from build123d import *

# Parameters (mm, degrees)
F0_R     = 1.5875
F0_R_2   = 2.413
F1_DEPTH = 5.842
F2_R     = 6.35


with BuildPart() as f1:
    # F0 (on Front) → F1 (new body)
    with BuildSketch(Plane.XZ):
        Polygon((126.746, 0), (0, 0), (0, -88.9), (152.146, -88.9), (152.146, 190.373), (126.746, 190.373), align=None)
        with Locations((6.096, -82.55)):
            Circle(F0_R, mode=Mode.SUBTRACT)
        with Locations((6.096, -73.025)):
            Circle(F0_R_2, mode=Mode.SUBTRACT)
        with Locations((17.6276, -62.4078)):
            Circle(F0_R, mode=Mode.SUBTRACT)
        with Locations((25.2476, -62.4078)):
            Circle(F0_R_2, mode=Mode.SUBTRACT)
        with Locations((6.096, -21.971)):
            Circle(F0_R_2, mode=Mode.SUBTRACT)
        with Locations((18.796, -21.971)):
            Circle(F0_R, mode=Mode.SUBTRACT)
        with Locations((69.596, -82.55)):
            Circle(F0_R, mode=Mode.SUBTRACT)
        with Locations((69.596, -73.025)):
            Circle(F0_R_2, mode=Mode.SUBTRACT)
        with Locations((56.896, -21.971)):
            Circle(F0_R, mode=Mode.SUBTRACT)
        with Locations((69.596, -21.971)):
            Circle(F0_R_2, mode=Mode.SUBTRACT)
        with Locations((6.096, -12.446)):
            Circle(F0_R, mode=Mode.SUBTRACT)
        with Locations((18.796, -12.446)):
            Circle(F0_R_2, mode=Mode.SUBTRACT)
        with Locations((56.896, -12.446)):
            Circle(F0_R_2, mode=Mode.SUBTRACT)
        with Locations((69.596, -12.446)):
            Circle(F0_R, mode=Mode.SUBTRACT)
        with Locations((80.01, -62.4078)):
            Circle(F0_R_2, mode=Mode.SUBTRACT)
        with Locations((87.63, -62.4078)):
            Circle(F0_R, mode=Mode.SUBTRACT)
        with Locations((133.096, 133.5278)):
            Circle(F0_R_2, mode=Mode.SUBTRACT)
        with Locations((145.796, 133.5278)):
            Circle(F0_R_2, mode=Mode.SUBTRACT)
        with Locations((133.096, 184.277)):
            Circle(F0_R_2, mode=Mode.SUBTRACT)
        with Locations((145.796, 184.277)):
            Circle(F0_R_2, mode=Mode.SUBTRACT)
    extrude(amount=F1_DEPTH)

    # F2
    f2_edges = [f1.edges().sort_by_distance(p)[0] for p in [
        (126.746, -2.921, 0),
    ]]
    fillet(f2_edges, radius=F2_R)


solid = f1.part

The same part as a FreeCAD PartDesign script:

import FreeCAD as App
import Part
import Sketcher
from FreeCAD import Vector
Q = App.Units.Quantity


def edges_at(feature, points):
    """Names of the edges that pass closest to the given points."""
    edges = feature.Shape.Edges
    near = lambda p: min(range(len(edges)), key=lambda i: edges[i].distToShape(Part.Vertex(*p))[0])
    return sorted({f"Edge{near(p) + 1}" for p in points})


def add_polygon(sketch, points):
    """Adds a closed chain of lines whose ends are joined by coincident constraints."""
    first, n = sketch.GeometryCount, len(points)
    for a, b in zip(points, points[1:] + points[:1]):
        sketch.addGeometry(Part.LineSegment(App.Vector(*a, 0), App.Vector(*b, 0)), False)
    for i in range(n):
        sketch.addConstraint(Sketcher.Constraint("Coincident", first + i, 2, first + (i + 1) % n, 1))

doc = App.newDocument("Part")
params = doc.addObject("Spreadsheet::Sheet", "Params")
for row, (alias, value) in enumerate([
    ("sketch1_diameter", "0.19 in"),
    ("sketch1_width", "1 in"),
    ("sketch1_diameter2", "0.125 in"),
    ("sketch1_height", "3.5 in"),
    ("sketch1_width2", "4.99 in"),
    ("pad1_length", "0.23 in"),
    ("fillet_radius", "0.25 in"),
], start=1):
    params.set(f"A{row}", alias)
    params.set(f"B{row}", "=" + value)
    params.setAlias(f"B{row}", alias)

body = doc.addObject("PartDesign::Body", "Body")

# Sketch on XZ plane
sketch1 = doc.addObject("Sketcher::SketchObject", "Sketch")
body.addObject(sketch1)
sketch1.AttachmentSupport = (doc.XZ_Plane, [""])
sketch1.MapMode = "FlatFace"
add_polygon(sketch1, [(126.7, 0), (0, 0), (0, -88.9), (152.1, -88.9), (152.1, 190.4), (126.7, 190.4)])  # lines 0-5
sketch1.addGeometry(Part.Circle(Vector(6.1, -82.5, 0), Vector(0, 0, 1), 1.6), False)  # 6
sketch1.addGeometry(Part.Circle(Vector(6.1, -73, 0), Vector(0, 0, 1), 2.4), False)  # 7
sketch1.addGeometry(Part.Circle(Vector(17.6, -62.4, 0), Vector(0, 0, 1), 1.6), False)  # 8
sketch1.addGeometry(Part.Circle(Vector(25.2, -62.4, 0), Vector(0, 0, 1), 2.4), False)  # 9
sketch1.addGeometry(Part.Circle(Vector(6.1, -22, 0), Vector(0, 0, 1), 2.4), False)  # 10
sketch1.addGeometry(Part.Circle(Vector(18.8, -22, 0), Vector(0, 0, 1), 1.6), False)  # 11
sketch1.addGeometry(Part.Circle(Vector(69.6, -82.5, 0), Vector(0, 0, 1), 1.6), False)  # 12
sketch1.addGeometry(Part.Circle(Vector(69.6, -73, 0), Vector(0, 0, 1), 2.4), False)  # 13
sketch1.addGeometry(Part.Circle(Vector(56.9, -22, 0), Vector(0, 0, 1), 1.6), False)  # 14
sketch1.addGeometry(Part.Circle(Vector(69.6, -22, 0), Vector(0, 0, 1), 2.4), False)  # 15
sketch1.addGeometry(Part.Circle(Vector(6.1, -12.4, 0), Vector(0, 0, 1), 1.6), False)  # 16
sketch1.addGeometry(Part.Circle(Vector(18.8, -12.4, 0), Vector(0, 0, 1), 2.4), False)  # 17
sketch1.addGeometry(Part.Circle(Vector(56.9, -12.4, 0), Vector(0, 0, 1), 2.4), False)  # 18
sketch1.addGeometry(Part.Circle(Vector(69.6, -12.4, 0), Vector(0, 0, 1), 1.6), False)  # 19
sketch1.addGeometry(Part.Circle(Vector(80, -62.4, 0), Vector(0, 0, 1), 2.4), False)  # 20
sketch1.addGeometry(Part.Circle(Vector(87.6, -62.4, 0), Vector(0, 0, 1), 1.6), False)  # 21
sketch1.addGeometry(Part.Circle(Vector(133.1, 133.5, 0), Vector(0, 0, 1), 2.4), False)  # 22
sketch1.addGeometry(Part.Circle(Vector(145.8, 133.5, 0), Vector(0, 0, 1), 2.4), False)  # 23
sketch1.addGeometry(Part.Circle(Vector(133.1, 184.3, 0), Vector(0, 0, 1), 2.4), False)  # 24
sketch1.addGeometry(Part.Circle(Vector(145.8, 184.3, 0), Vector(0, 0, 1), 2.4), False)  # 25
sketch1.addConstraint([
    Sketcher.Constraint("Horizontal", 0),
    Sketcher.Constraint("Vertical", 1),
    Sketcher.Constraint("Horizontal", 2),
    Sketcher.Constraint("Vertical", 3),
    Sketcher.Constraint("Horizontal", 4),
    Sketcher.Constraint("Vertical", 5),
    Sketcher.Constraint("Coincident", 0, 2, -1, 1),
    Sketcher.Constraint("Equal", 6, 8),
    Sketcher.Constraint("Equal", 7, 9),
    Sketcher.Constraint("Equal", 9, 10),
    Sketcher.Constraint("Equal", 8, 11),
    Sketcher.Constraint("Equal", 11, 12),
    Sketcher.Constraint("Equal", 10, 13),
    Sketcher.Constraint("Equal", 12, 14),
    Sketcher.Constraint("Equal", 13, 15),
    Sketcher.Constraint("Equal", 14, 16),
    Sketcher.Constraint("Equal", 15, 17),
    Sketcher.Constraint("Equal", 17, 18),
    Sketcher.Constraint("Equal", 16, 19),
    Sketcher.Constraint("Equal", 18, 20),
    Sketcher.Constraint("Equal", 19, 21),
    Sketcher.Constraint("Equal", 20, 22),
    Sketcher.Constraint("Equal", 22, 23),
    Sketcher.Constraint("Equal", 23, 24),
    Sketcher.Constraint("Equal", 24, 25),
    Sketcher.Constraint("Horizontal", 8, 3, 9, 3),
    Sketcher.Constraint("Horizontal", 10, 3, 11, 3),
    Sketcher.Constraint("Horizontal", 6, 3, 12, 3),
    Sketcher.Constraint("Horizontal", 7, 3, 13, 3),
    Sketcher.Constraint("Horizontal", 11, 3, 14, 3),
    Sketcher.Constraint("Horizontal", 14, 3, 15, 3),
    Sketcher.Constraint("Horizontal", 16, 3, 17, 3),
    Sketcher.Constraint("Horizontal", 17, 3, 18, 3),
    Sketcher.Constraint("Horizontal", 18, 3, 19, 3),
    Sketcher.Constraint("Horizontal", 9, 3, 20, 3),
    Sketcher.Constraint("Horizontal", 20, 3, 21, 3),
    Sketcher.Constraint("Horizontal", 22, 3, 23, 3),
    Sketcher.Constraint("Horizontal", 24, 3, 25, 3),
    Sketcher.Constraint("Vertical", 6, 3, 7, 3),
    Sketcher.Constraint("Vertical", 7, 3, 10, 3),
    Sketcher.Constraint("Vertical", 12, 3, 13, 3),
    Sketcher.Constraint("Vertical", 13, 3, 15, 3),
    Sketcher.Constraint("Vertical", 10, 3, 16, 3),
    Sketcher.Constraint("Vertical", 11, 3, 17, 3),
    Sketcher.Constraint("Vertical", 14, 3, 18, 3),
    Sketcher.Constraint("Vertical", 15, 3, 19, 3),
    Sketcher.Constraint("Vertical", 22, 3, 24, 3),
    Sketcher.Constraint("Vertical", 23, 3, 25, 3),
    Sketcher.Constraint("Diameter", 7, Q("0.19 in")),
    Sketcher.Constraint("DistanceX", 4, 2, 4, 1, Q("1 in")),
    Sketcher.Constraint("Diameter", 6, Q("0.125 in")),
    Sketcher.Constraint("DistanceY", 1, 2, 1, 1, Q("3.5 in")),
    Sketcher.Constraint("DistanceX", 11, 3, 12, 3, Q("2 in")),
    Sketcher.Constraint("DistanceX", 10, 3, 14, 3, Q("2 in")),
    Sketcher.Constraint("DistanceX", 18, 3, 22, 3, Q("3 in")),
    Sketcher.Constraint("DistanceX", 19, 3, 23, 3, Q("3 in")),
    Sketcher.Constraint("DistanceX", 0, 2, 0, 1, Q("4.99 in")),
    Sketcher.Constraint("DistanceX", 8, 3, 9, 3, Q("0.3 in")),
    Sketcher.Constraint("DistanceX", 10, 3, 11, 3, Q("0.5 in")),
    Sketcher.Constraint("DistanceX", 20, 3, 21, 3, Q("0.3 in")),
    Sketcher.Constraint("DistanceY", 3, 1, 3, 2, Q("10.995 in")),
    Sketcher.Constraint("DistanceX", -1, 1, 6, 3, Q("0.24 in")),
    Sketcher.Constraint("DistanceY", 6, 3, -1, 1, Q("3.25 in")),
    Sketcher.Constraint("DistanceY", 16, 3, -1, 1, Q("0.49 in")),
    Sketcher.Constraint("DistanceX", -1, 1, 20, 3, Q("3.15 in")),
    Sketcher.Constraint("DistanceY", 7, 3, 10, 3, Q("2.01 in")),
    Sketcher.Constraint("DistanceY", 15, 3, 24, 3, Q("8.12 in")),
    Sketcher.Constraint("DistanceY", 25, 3, 3, 2, Q("0.24 in")),
    Sketcher.Constraint("DistanceX", -1, 1, 8, 3, Q("0.694 in")),
    Sketcher.Constraint("DistanceY", 8, 3, -1, 1, Q("2.457 in")),
    Sketcher.Constraint("DistanceY", -1, 1, 22, 3, Q("5.257 in")),
])
sketch1.setExpression("Constraints[54]", "Params.sketch1_diameter")
sketch1.setExpression("Constraints[55]", "Params.sketch1_width")
sketch1.setExpression("Constraints[56]", "Params.sketch1_diameter2")
sketch1.setExpression("Constraints[57]", "Params.sketch1_height")
sketch1.setExpression("Constraints[62]", "Params.sketch1_width2")
pad1 = doc.addObject("PartDesign::Pad", "Pad")
body.addObject(pad1)
pad1.Profile = sketch1
pad1.setExpression("Length", "Params.pad1_length")
doc.recompute()

fillet = doc.addObject("PartDesign::Fillet", "Fillet")
body.addObject(fillet)
fillet.Base = (pad1, edges_at(pad1, [(126.746, -2.921, 0)]))
fillet.setExpression("Radius", "Params.fillet_radius")

doc.recompute()
